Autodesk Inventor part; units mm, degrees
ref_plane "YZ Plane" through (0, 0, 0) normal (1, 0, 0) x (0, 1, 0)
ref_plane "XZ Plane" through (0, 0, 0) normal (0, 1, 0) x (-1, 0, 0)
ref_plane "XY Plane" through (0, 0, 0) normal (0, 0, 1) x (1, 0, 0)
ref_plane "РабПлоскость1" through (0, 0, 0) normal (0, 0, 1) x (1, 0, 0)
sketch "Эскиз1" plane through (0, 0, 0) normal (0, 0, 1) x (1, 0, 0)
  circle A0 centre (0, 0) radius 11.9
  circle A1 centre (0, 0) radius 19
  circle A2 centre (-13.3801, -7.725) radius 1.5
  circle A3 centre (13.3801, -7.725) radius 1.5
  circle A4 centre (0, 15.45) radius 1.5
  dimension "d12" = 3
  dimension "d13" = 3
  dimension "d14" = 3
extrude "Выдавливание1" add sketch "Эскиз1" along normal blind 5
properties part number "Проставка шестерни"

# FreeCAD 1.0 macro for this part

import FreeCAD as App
import Part
import Sketcher
from FreeCAD import Vector

doc = App.newDocument("Part")
body = doc.addObject("PartDesign::Body", "Body")

# Sketch on XY plane
sketch1 = body.newObject("Sketcher::SketchObject", "Sketch")
sketch1.AttachmentSupport = (doc.getObject("XY_Plane"), [""])
sketch1.MapMode = "FlatFace"
sketch1.addGeometry(Part.Circle(Vector(0, 0, 0), Vector(0, 0, 1), 19), False)
sketch1.addGeometry(Part.Circle(Vector(-13.4, -7.7, 0), Vector(0, 0, 1), 1.5), False)
sketch1.addGeometry(Part.Circle(Vector(13.4, -7.7, 0), Vector(0, 0, 1), 1.5), False)
sketch1.addGeometry(Part.Circle(Vector(0, 0, 0), Vector(0, 0, 1), 11.9), False)
sketch1.addGeometry(Part.Circle(Vector(0, 15.4, 0), Vector(0, 0, 1), 1.5), False)
sketch1.addConstraint(Sketcher.Constraint("Coincident", 0, 3, -1, 1))
sketch1.addConstraint(Sketcher.Constraint("Coincident", 3, 3, -1, 1))
sketch1.addConstraint(Sketcher.Constraint("Equal", 1, 2))
sketch1.addConstraint(Sketcher.Constraint("Equal", 2, 4))
sketch1.addConstraint(Sketcher.Constraint("Symmetric", 1, 3, 2, 3, -2))
sketch1.addConstraint(Sketcher.Constraint("PointOnObject", 4, 3, -2))
sketch1.addConstraint(Sketcher.Constraint("Diameter", 1, 3.0))
sketch1.addConstraint(Sketcher.Constraint("Diameter", 0, 38.0))
sketch1.addConstraint(Sketcher.Constraint("Diameter", 3, 23.8))
sketch1.addConstraint(Sketcher.Constraint("DistanceX", 1, 3, -1, 1, 13.38))
sketch1.addConstraint(Sketcher.Constraint("DistanceY", -1, 1, 4, 3, 15.45))
sketch1.addConstraint(Sketcher.Constraint("DistanceY", 1, 3, -1, 1, 7.725))
pad1 = body.newObject("PartDesign::Pad", "Pad")
pad1.Profile = sketch1
pad1.Length = 5

doc.recompute()
